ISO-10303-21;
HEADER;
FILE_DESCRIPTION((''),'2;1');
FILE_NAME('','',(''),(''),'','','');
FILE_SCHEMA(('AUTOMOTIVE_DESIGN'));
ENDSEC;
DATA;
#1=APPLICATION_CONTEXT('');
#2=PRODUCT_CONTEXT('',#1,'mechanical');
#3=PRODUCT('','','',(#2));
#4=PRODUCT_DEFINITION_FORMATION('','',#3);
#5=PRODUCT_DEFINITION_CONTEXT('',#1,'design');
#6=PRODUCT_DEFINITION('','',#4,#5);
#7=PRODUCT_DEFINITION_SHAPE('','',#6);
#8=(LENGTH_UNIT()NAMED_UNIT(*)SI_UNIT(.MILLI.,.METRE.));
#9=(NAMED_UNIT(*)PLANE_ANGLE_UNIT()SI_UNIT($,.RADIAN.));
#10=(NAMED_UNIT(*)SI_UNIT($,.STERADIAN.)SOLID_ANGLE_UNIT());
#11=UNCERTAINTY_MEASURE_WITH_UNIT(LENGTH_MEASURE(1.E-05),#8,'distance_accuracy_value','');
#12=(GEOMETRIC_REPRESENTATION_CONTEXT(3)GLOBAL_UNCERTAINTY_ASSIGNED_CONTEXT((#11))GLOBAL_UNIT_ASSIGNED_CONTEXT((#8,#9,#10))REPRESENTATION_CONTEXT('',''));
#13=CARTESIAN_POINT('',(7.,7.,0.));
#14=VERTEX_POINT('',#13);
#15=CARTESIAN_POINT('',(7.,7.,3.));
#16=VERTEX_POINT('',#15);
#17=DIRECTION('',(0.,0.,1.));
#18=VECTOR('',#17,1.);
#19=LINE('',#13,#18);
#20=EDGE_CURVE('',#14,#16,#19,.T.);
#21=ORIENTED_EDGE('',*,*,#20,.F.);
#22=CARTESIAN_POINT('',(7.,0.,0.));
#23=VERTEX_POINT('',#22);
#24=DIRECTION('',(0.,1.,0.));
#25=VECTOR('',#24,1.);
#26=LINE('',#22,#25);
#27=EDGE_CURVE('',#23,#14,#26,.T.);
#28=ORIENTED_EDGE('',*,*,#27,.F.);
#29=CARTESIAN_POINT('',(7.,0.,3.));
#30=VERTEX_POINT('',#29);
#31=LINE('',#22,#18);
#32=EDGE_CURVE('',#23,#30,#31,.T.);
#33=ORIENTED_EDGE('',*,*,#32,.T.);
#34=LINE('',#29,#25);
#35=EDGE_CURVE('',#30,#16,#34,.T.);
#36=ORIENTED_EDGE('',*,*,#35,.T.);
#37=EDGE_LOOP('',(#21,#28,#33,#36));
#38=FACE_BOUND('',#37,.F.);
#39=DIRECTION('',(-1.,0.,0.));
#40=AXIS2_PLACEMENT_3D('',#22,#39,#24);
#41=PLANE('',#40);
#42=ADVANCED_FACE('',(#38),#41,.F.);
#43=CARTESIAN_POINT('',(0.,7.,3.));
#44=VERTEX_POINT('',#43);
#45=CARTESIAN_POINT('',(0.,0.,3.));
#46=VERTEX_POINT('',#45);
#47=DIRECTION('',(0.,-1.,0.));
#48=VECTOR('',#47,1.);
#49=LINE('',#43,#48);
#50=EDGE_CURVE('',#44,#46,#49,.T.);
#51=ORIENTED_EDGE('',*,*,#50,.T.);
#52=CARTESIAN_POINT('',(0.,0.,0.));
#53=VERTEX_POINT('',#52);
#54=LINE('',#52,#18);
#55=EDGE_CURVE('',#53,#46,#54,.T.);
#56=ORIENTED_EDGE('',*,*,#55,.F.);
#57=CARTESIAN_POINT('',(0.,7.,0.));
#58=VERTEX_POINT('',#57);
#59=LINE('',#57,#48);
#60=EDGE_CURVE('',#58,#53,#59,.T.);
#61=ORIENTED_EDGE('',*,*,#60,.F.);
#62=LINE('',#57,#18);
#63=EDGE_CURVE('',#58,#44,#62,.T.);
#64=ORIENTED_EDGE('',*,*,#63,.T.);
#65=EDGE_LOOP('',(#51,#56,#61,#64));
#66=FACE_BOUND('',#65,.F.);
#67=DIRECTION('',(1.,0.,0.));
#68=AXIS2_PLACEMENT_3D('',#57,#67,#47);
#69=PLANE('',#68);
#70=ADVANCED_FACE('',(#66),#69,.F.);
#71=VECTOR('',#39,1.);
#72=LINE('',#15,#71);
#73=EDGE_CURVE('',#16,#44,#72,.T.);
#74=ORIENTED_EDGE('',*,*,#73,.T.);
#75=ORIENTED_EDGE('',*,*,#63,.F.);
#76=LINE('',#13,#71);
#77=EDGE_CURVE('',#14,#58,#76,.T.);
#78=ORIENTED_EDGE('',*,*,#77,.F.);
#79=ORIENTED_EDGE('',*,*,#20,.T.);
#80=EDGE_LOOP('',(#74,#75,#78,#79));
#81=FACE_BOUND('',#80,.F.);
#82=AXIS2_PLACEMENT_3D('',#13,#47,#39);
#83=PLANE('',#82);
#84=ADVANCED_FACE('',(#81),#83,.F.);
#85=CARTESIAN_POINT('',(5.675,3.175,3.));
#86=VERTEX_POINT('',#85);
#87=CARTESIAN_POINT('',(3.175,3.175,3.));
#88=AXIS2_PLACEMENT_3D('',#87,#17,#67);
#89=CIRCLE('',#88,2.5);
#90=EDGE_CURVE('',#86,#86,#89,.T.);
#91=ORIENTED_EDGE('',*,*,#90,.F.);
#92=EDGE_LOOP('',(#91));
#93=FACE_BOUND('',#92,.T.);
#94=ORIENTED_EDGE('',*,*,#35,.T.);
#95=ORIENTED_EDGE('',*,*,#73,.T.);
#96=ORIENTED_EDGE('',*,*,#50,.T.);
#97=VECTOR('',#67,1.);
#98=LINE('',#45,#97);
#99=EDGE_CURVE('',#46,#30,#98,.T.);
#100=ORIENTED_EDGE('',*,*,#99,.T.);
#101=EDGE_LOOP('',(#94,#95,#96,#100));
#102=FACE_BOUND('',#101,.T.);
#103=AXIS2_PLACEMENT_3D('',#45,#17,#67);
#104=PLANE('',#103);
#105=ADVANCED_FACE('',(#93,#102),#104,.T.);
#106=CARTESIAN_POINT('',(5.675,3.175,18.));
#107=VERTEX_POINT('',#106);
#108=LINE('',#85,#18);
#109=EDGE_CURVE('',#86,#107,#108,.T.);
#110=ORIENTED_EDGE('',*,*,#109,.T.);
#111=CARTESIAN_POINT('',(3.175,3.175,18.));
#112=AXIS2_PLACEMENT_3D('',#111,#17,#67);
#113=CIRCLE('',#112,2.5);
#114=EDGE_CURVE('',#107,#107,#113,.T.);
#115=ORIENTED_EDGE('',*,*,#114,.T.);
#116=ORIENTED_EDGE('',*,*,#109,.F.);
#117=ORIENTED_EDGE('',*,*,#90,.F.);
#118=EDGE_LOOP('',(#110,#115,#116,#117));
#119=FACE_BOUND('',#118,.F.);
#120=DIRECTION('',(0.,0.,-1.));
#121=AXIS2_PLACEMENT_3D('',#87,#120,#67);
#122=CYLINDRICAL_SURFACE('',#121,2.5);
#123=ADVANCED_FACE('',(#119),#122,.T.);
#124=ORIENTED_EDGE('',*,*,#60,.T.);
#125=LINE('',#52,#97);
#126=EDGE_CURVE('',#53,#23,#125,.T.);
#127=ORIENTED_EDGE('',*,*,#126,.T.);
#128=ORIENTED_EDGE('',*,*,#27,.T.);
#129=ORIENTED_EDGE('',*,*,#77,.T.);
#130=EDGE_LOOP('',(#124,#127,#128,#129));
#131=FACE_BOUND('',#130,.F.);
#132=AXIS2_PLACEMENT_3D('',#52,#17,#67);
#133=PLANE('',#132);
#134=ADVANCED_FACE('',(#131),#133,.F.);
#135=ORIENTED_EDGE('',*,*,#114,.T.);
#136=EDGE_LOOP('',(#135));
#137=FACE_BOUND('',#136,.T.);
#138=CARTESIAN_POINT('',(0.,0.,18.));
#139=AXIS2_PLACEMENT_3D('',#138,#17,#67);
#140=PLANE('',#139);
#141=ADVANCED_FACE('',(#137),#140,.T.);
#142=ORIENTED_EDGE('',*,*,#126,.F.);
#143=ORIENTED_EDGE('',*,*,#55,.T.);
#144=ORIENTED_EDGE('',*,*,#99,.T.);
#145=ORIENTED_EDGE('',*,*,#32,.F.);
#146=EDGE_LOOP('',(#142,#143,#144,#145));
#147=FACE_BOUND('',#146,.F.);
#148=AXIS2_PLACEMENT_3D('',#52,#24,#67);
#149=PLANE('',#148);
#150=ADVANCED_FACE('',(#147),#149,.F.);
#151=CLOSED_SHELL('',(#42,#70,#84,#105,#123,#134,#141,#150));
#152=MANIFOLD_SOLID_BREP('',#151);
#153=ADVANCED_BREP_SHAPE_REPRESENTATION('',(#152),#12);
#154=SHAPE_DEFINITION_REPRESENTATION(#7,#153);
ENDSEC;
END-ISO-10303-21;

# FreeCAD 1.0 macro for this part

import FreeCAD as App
import Part
import Sketcher
Q = App.Units.Quantity


def add_polygon(sketch, points):
    """Adds a closed chain of lines whose ends are joined by coincident constraints."""
    first, n = sketch.GeometryCount, len(points)
    for a, b in zip(points, points[1:] + points[:1]):
        sketch.addGeometry(Part.LineSegment(App.Vector(*a, 0), App.Vector(*b, 0)), False)
    for i in range(n):
        sketch.addConstraint(Sketcher.Constraint("Coincident", first + i, 2, first + (i + 1) % n, 1))

doc = App.newDocument("Part")
body = doc.addObject("PartDesign::Body", "Body")

# Sketch on XY plane
sketch1 = doc.addObject("Sketcher::SketchObject", "Sketch")
body.addObject(sketch1)
sketch1.AttachmentSupport = (doc.XY_Plane, [""])
sketch1.MapMode = "FlatFace"
add_polygon(sketch1, [(0, 7), (0, 0), (7, 0), (7, 7)])  # lines 0-3
sketch1.addConstraint(Sketcher.Constraint("Vertical", 0))
sketch1.addConstraint(Sketcher.Constraint("Horizontal", 1))
sketch1.addConstraint(Sketcher.Constraint("Vertical", 2))
sketch1.addConstraint(Sketcher.Constraint("Horizontal", 3))
sketch1.addConstraint(Sketcher.Constraint("Coincident", 0, 2, -1, 1))
sketch1.addConstraint(Sketcher.Constraint("Equal", 3, 0))
sketch1.addConstraint(Sketcher.Constraint("DistanceX", 1, 1, 1, 2, Q("7 mm")))
pad1 = doc.addObject("PartDesign::Pad", "Pad")
body.addObject(pad1)
pad1.Profile = sketch1
pad1.Length = 3

# Sketch on XY plane
sketch2 = doc.addObject("Sketcher::SketchObject", "Sketch001")
body.addObject(sketch2)
sketch2.AttachmentSupport = (doc.XY_Plane, [""])
sketch2.MapMode = "FlatFace"
sketch2.AttachmentOffset = App.Placement(App.Vector(0, 0, 3), App.Rotation())
sketch2.addGeometry(Part.Circle(App.Vector(3.2, 3.2, 0), App.Vector(0, 0, 1), 2.5), False)
sketch2.addConstraint(Sketcher.Constraint("Diameter", 0, Q("5 mm")))
sketch2.addConstraint(Sketcher.Constraint("DistanceX", -1, 1, 0, 3, Q("3.175 mm")))
sketch2.addConstraint(Sketcher.Constraint("DistanceY", -1, 1, 0, 3, Q("3.175 mm")))
pad2 = doc.addObject("PartDesign::Pad", "Pad001")
body.addObject(pad2)
pad2.Profile = sketch2
pad2.Length = 15

doc.recompute()
